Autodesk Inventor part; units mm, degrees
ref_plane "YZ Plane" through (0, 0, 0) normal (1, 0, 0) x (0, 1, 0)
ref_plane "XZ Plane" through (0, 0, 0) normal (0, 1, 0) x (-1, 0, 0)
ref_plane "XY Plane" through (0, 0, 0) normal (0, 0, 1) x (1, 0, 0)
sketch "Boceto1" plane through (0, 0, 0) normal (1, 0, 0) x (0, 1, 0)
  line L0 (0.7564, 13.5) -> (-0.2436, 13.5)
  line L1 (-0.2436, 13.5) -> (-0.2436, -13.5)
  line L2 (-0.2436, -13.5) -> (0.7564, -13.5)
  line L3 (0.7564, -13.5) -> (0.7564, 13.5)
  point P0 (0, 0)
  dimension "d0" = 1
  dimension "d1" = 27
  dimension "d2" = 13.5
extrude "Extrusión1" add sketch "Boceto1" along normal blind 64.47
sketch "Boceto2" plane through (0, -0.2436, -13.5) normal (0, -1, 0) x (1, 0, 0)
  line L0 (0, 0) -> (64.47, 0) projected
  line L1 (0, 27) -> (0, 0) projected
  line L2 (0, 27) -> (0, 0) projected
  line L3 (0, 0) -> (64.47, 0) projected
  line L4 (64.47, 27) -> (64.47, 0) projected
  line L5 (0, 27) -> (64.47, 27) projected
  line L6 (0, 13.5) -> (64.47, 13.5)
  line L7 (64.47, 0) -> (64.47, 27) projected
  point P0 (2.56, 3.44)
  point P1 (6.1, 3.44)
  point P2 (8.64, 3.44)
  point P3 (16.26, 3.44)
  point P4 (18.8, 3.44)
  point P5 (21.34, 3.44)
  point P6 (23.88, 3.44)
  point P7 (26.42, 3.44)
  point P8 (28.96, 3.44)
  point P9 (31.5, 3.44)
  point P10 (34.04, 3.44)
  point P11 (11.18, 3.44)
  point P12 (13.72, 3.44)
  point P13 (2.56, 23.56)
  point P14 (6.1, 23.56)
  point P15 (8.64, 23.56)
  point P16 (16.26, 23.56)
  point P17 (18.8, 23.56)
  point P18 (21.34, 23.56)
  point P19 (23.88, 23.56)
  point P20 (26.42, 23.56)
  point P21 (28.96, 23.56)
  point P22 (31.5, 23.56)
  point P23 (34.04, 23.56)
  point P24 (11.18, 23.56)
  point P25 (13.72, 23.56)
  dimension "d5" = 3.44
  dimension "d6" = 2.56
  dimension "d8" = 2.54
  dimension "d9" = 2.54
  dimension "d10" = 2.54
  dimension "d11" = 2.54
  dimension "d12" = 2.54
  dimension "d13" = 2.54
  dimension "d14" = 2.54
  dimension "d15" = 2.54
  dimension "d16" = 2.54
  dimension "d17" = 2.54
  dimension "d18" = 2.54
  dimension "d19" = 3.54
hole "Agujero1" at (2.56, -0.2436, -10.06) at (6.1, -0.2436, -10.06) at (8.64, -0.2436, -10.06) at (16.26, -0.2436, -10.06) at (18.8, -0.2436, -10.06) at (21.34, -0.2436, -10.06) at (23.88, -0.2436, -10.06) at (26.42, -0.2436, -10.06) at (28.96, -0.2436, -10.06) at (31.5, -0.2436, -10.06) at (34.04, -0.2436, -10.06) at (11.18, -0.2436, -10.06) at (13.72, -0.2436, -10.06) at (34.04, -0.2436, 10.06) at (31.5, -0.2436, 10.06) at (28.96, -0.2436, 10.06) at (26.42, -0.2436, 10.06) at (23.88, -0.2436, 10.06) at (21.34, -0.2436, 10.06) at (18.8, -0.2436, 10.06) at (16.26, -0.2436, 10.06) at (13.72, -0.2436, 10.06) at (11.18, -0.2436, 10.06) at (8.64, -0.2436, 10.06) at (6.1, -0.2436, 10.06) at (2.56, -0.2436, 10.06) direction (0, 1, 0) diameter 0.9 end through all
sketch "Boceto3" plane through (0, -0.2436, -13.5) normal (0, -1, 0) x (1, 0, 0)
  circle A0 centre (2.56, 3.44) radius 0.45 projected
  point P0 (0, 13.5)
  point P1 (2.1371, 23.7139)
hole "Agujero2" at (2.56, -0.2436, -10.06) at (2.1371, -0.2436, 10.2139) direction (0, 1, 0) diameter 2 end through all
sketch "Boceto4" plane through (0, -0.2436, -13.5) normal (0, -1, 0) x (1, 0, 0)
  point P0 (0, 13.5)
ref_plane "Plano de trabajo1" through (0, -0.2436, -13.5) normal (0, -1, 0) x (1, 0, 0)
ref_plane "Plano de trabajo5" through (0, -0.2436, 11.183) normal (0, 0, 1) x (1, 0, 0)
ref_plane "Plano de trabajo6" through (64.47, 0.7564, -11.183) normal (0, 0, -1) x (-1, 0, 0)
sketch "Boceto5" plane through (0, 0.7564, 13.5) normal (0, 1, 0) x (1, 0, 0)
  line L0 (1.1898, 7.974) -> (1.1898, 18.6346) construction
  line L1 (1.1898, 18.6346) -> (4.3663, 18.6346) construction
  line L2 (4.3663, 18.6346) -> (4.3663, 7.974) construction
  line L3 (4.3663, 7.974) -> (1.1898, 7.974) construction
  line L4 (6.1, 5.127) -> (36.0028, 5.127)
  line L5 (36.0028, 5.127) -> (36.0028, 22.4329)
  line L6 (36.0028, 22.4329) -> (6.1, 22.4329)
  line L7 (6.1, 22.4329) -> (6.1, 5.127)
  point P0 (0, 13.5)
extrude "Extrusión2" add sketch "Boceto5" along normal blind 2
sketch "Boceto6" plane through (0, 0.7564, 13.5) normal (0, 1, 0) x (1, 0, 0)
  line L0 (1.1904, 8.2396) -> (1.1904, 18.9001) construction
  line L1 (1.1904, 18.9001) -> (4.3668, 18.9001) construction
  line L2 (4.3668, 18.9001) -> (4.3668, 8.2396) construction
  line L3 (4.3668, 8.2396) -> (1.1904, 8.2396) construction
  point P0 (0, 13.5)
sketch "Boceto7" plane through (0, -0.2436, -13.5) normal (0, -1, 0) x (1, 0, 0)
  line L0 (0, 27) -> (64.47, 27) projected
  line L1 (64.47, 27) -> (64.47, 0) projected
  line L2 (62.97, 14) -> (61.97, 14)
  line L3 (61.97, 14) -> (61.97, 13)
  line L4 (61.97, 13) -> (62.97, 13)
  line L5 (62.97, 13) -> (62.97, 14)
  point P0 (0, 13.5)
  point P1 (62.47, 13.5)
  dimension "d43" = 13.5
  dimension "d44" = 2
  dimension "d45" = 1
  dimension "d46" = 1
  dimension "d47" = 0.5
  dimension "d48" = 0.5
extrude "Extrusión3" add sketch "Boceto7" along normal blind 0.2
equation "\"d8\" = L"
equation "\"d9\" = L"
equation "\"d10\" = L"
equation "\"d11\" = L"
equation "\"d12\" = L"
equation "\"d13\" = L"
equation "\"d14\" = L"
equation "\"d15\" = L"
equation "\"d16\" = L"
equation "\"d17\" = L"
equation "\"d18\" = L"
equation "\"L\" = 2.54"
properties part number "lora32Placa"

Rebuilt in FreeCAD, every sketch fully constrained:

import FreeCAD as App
import Part
import Sketcher
Q = App.Units.Quantity


def add_polygon(sketch, points):
    """Adds a closed chain of lines whose ends are joined by coincident constraints."""
    first, n = sketch.GeometryCount, len(points)
    for a, b in zip(points, points[1:] + points[:1]):
        sketch.addGeometry(Part.LineSegment(App.Vector(*a, 0), App.Vector(*b, 0)), False)
    for i in range(n):
        sketch.addConstraint(Sketcher.Constraint("Coincident", first + i, 2, first + (i + 1) % n, 1))

doc = App.newDocument("Part")
body = doc.addObject("PartDesign::Body", "Body")

# Sketch on YZ plane
sketch1 = doc.addObject("Sketcher::SketchObject", "Sketch")
body.addObject(sketch1)
sketch1.AttachmentSupport = (doc.YZ_Plane, [""])
sketch1.MapMode = "FlatFace"
add_polygon(sketch1, [(0.8, -13.5), (0.8, 13.5), (-0.2, 13.5), (-0.2, -13.5)])  # lines 0-3
sketch1.addConstraint(Sketcher.Constraint("Vertical", 0))
sketch1.addConstraint(Sketcher.Constraint("Horizontal", 1))
sketch1.addConstraint(Sketcher.Constraint("Vertical", 2))
sketch1.addConstraint(Sketcher.Constraint("Horizontal", 3))
sketch1.addConstraint(Sketcher.Constraint("DistanceX", 1, 2, 1, 1, Q("1 mm")))
sketch1.addConstraint(Sketcher.Constraint("DistanceY", 0, 1, 0, 2, Q("27 mm")))
sketch1.addConstraint(Sketcher.Constraint("DistanceY", -1, 1, 0, 2, Q("13.5 mm")))
sketch1.addConstraint(Sketcher.Constraint("DistanceX", -1, 1, 0, 2, Q("0.7564 mm")))
pad1 = doc.addObject("PartDesign::Pad", "Pad")
body.addObject(pad1)
pad1.Profile = sketch1
pad1.Length = 64.47

# Sketch on XZ plane
sketch2 = doc.addObject("Sketcher::SketchObject", "Sketch001")
body.addObject(sketch2)
sketch2.AttachmentSupport = (doc.XZ_Plane, [""])
sketch2.MapMode = "FlatFace"
sketch2.AttachmentOffset = App.Placement(App.Vector(0, 0, 0.2436), App.Rotation())
sketch2.addGeometry(Part.Circle(App.Vector(2.56, -10.06, 0), App.Vector(0, 0, 1), 0.45), False)
sketch2.addGeometry(Part.Circle(App.Vector(6.1, -10.06, 0), App.Vector(0, 0, 1), 0.45), False)
sketch2.addGeometry(Part.Circle(App.Vector(8.64, -10.06, 0), App.Vector(0, 0, 1), 0.45), False)
sketch2.addGeometry(Part.Circle(App.Vector(16.26, -10.06, 0), App.Vector(0, 0, 1), 0.45), False)
sketch2.addGeometry(Part.Circle(App.Vector(18.8, -10.06, 0), App.Vector(0, 0, 1), 0.45), False)
sketch2.addGeometry(Part.Circle(App.Vector(21.34, -10.06, 0), App.Vector(0, 0, 1), 0.45), False)
sketch2.addGeometry(Part.Circle(App.Vector(23.88, -10.06, 0), App.Vector(0, 0, 1), 0.45), False)
sketch2.addGeometry(Part.Circle(App.Vector(26.42, -10.06, 0), App.Vector(0, 0, 1), 0.45), False)
sketch2.addGeometry(Part.Circle(App.Vector(28.96, -10.06, 0), App.Vector(0, 0, 1), 0.45), False)
sketch2.addGeometry(Part.Circle(App.Vector(31.5, -10.06, 0), App.Vector(0, 0, 1), 0.45), False)
sketch2.addGeometry(Part.Circle(App.Vector(34.04, -10.06, 0), App.Vector(0, 0, 1), 0.45), False)
sketch2.addGeometry(Part.Circle(App.Vector(11.18, -10.06, 0), App.Vector(0, 0, 1), 0.45), False)
sketch2.addGeometry(Part.Circle(App.Vector(13.72, -10.06, 0), App.Vector(0, 0, 1), 0.45), False)
sketch2.addGeometry(Part.Circle(App.Vector(34.04, 10.06, 0), App.Vector(0, 0, 1), 0.45), False)
sketch2.addGeometry(Part.Circle(App.Vector(31.5, 10.06, 0), App.Vector(0, 0, 1), 0.45), False)
sketch2.addGeometry(Part.Circle(App.Vector(28.96, 10.06, 0), App.Vector(0, 0, 1), 0.45), False)
sketch2.addGeometry(Part.Circle(App.Vector(26.42, 10.06, 0), App.Vector(0, 0, 1), 0.45), False)
sketch2.addGeometry(Part.Circle(App.Vector(23.88, 10.06, 0), App.Vector(0, 0, 1), 0.45), False)
sketch2.addGeometry(Part.Circle(App.Vector(21.34, 10.06, 0), App.Vector(0, 0, 1), 0.45), False)
sketch2.addGeometry(Part.Circle(App.Vector(18.8, 10.06, 0), App.Vector(0, 0, 1), 0.45), False)
sketch2.addGeometry(Part.Circle(App.Vector(16.26, 10.06, 0), App.Vector(0, 0, 1), 0.45), False)
sketch2.addGeometry(Part.Circle(App.Vector(13.72, 10.06, 0), App.Vector(0, 0, 1), 0.45), False)
sketch2.addGeometry(Part.Circle(App.Vector(11.18, 10.06, 0), App.Vector(0, 0, 1), 0.45), False)
sketch2.addGeometry(Part.Circle(App.Vector(8.64, 10.06, 0), App.Vector(0, 0, 1), 0.45), False)
sketch2.addGeometry(Part.Circle(App.Vector(6.1, 10.06, 0), App.Vector(0, 0, 1), 0.45), False)
sketch2.addGeometry(Part.Circle(App.Vector(2.56, 10.06, 0), App.Vector(0, 0, 1), 0.45), False)
sketch2.addConstraint(Sketcher.Constraint("Equal", 0, 1))
sketch2.addConstraint(Sketcher.Constraint("Equal", 1, 2))
sketch2.addConstraint(Sketcher.Constraint("Equal", 2, 3))
sketch2.addConstraint(Sketcher.Constraint("Equal", 3, 4))
sketch2.addConstraint(Sketcher.Constraint("Equal", 4, 5))
sketch2.addConstraint(Sketcher.Constraint("Equal", 5, 6))
sketch2.addConstraint(Sketcher.Constraint("Equal", 6, 7))
sketch2.addConstraint(Sketcher.Constraint("Equal", 7, 8))
sketch2.addConstraint(Sketcher.Constraint("Equal", 8, 9))
sketch2.addConstraint(Sketcher.Constraint("Equal", 9, 10))
sketch2.addConstraint(Sketcher.Constraint("Equal", 10, 11))
sketch2.addConstraint(Sketcher.Constraint("Equal", 11, 12))
sketch2.addConstraint(Sketcher.Constraint("Equal", 12, 13))
sketch2.addConstraint(Sketcher.Constraint("Equal", 13, 14))
sketch2.addConstraint(Sketcher.Constraint("Equal", 14, 15))
sketch2.addConstraint(Sketcher.Constraint("Equal", 15, 16))
sketch2.addConstraint(Sketcher.Constraint("Equal", 16, 17))
sketch2.addConstraint(Sketcher.Constraint("Equal", 17, 18))
sketch2.addConstraint(Sketcher.Constraint("Equal", 18, 19))
sketch2.addConstraint(Sketcher.Constraint("Equal", 19, 20))
sketch2.addConstraint(Sketcher.Constraint("Equal", 20, 21))
sketch2.addConstraint(Sketcher.Constraint("Equal", 21, 22))
sketch2.addConstraint(Sketcher.Constraint("Equal", 22, 23))
sketch2.addConstraint(Sketcher.Constraint("Equal", 23, 24))
sketch2.addConstraint(Sketcher.Constraint("Equal", 24, 25))
sketch2.addConstraint(Sketcher.Constraint("Symmetric", 10, 3, 13, 3, -1))
sketch2.addConstraint(Sketcher.Constraint("Symmetric", 9, 3, 14, 3, -1))
sketch2.addConstraint(Sketcher.Constraint("Symmetric", 8, 3, 15, 3, -1))
sketch2.addConstraint(Sketcher.Constraint("Symmetric", 7, 3, 16, 3, -1))
sketch2.addConstraint(Sketcher.Constraint("Symmetric", 6, 3, 17, 3, -1))
sketch2.addConstraint(Sketcher.Constraint("Symmetric", 5, 3, 18, 3, -1))
sketch2.addConstraint(Sketcher.Constraint("Symmetric", 4, 3, 19, 3, -1))
sketch2.addConstraint(Sketcher.Constraint("Symmetric", 3, 3, 20, 3, -1))
sketch2.addConstraint(Sketcher.Constraint("Symmetric", 12, 3, 21, 3, -1))
sketch2.addConstraint(Sketcher.Constraint("Symmetric", 11, 3, 22, 3, -1))
sketch2.addConstraint(Sketcher.Constraint("Symmetric", 2, 3, 23, 3, -1))
sketch2.addConstraint(Sketcher.Constraint("Symmetric", 1, 3, 24, 3, -1))
sketch2.addConstraint(Sketcher.Constraint("Symmetric", 0, 3, 25, 3, -1))
sketch2.addConstraint(Sketcher.Constraint("Horizontal", 0, 3, 1, 3))
sketch2.addConstraint(Sketcher.Constraint("Horizontal", 1, 3, 2, 3))
sketch2.addConstraint(Sketcher.Constraint("Horizontal", 2, 3, 3, 3))
sketch2.addConstraint(Sketcher.Constraint("Horizontal", 3, 3, 4, 3))
sketch2.addConstraint(Sketcher.Constraint("Horizontal", 4, 3, 5, 3))
sketch2.addConstraint(Sketcher.Constraint("Horizontal", 5, 3, 6, 3))
sketch2.addConstraint(Sketcher.Constraint("Horizontal", 6, 3, 7, 3))
sketch2.addConstraint(Sketcher.Constraint("Horizontal", 7, 3, 8, 3))
sketch2.addConstraint(Sketcher.Constraint("Horizontal", 8, 3, 9, 3))
sketch2.addConstraint(Sketcher.Constraint("Horizontal", 9, 3, 10, 3))
sketch2.addConstraint(Sketcher.Constraint("Horizontal", 10, 3, 11, 3))
sketch2.addConstraint(Sketcher.Constraint("Horizontal", 11, 3, 12, 3))
sketch2.addConstraint(Sketcher.Constraint("Diameter", 0, Q("0.9 mm")))
sketch2.addConstraint(Sketcher.Constraint("DistanceX", -1, 1, 1, 3, Q("6.1 mm")))
sketch2.addConstraint(Sketcher.Constraint("DistanceX", -1, 1, 4, 3, Q("18.8 mm")))
sketch2.addConstraint(Sketcher.Constraint("DistanceX", -1, 1, 9, 3, Q("31.5 mm")))
sketch2.addConstraint(Sketcher.Constraint("DistanceX", 0, 3, 3, 3, Q("13.7 mm")))
sketch2.addConstraint(Sketcher.Constraint("DistanceX", 2, 3, 5, 3, Q("12.7 mm")))
sketch2.addConstraint(Sketcher.Constraint("DistanceX", 3, 3, 8, 3, Q("12.7 mm")))
sketch2.addConstraint(Sketcher.Constraint("DistanceX", 5, 3, 10, 3, Q("12.7 mm")))
sketch2.addConstraint(Sketcher.Constraint("DistanceX", 21, 3, 16, 3, Q("12.7 mm")))
sketch2.addConstraint(Sketcher.Constraint("DistanceX", 22, 3, 17, 3, Q("12.7 mm")))
sketch2.addConstraint(Sketcher.Constraint("DistanceX", -1, 1, 0, 3, Q("2.56 mm")))
sketch2.addConstraint(Sketcher.Constraint("DistanceY", 0, 3, -1, 1, Q("10.06 mm")))
sketch2.addConstraint(Sketcher.Constraint("DistanceX", -1, 1, 2, 3, Q("8.64 mm")))
sketch2.addConstraint(Sketcher.Constraint("DistanceX", -1, 1, 6, 3, Q("23.88 mm")))
sketch2.addConstraint(Sketcher.Constraint("DistanceX", -1, 1, 7, 3, Q("26.42 mm")))
doc.recompute()
hole = doc.addObject("PartDesign::Hole", "Hole")
body.addObject(hole)
hole.Profile = sketch2
hole.ThreadType = "None"
hole.Diameter = 0.9
hole.DepthType = "ThroughAll"

# Sketch on XZ plane
sketch3 = doc.addObject("Sketcher::SketchObject", "Sketch002")
body.addObject(sketch3)
sketch3.AttachmentSupport = (doc.XZ_Plane, [""])
sketch3.MapMode = "FlatFace"
sketch3.AttachmentOffset = App.Placement(App.Vector(0, 0, 0.2436), App.Rotation())
sketch3.addGeometry(Part.Circle(App.Vector(2.6, -10.1, 0), App.Vector(0, 0, 1), 1), False)
sketch3.addGeometry(Part.Circle(App.Vector(2.1, 10.2, 0), App.Vector(0, 0, 1), 1), False)
sketch3.addConstraint(Sketcher.Constraint("Equal", 0, 1))
sketch3.addConstraint(Sketcher.Constraint("Diameter", 0, Q("2 mm")))
sketch3.addConstraint(Sketcher.Constraint("DistanceX", -1, 1, 0, 3, Q("2.56 mm")))
sketch3.addConstraint(Sketcher.Constraint("DistanceY", 0, 3, -1, 1, Q("10.06 mm")))
sketch3.addConstraint(Sketcher.Constraint("DistanceX", -1, 1, 1, 3, Q("2.137 mm")))
sketch3.addConstraint(Sketcher.Constraint("DistanceY", -1, 1, 1, 3, Q("10.214 mm")))
doc.recompute()
hole2 = doc.addObject("PartDesign::Hole", "Hole001")
body.addObject(hole2)
hole2.Profile = sketch3
hole2.ThreadType = "None"
hole2.Diameter = 2
hole2.DepthType = "ThroughAll"

# Sketch on XZ plane
sketch4 = doc.addObject("Sketcher::SketchObject", "Sketch003")
body.addObject(sketch4)
sketch4.AttachmentSupport = (doc.XZ_Plane, [""])
sketch4.MapMode = "FlatFace"
sketch4.AttachmentOffset = App.Placement(App.Vector(0, 0, -0.7564), App.Rotation())
add_polygon(sketch4, [(6, -9), (6, 8), (36, 8), (36, -9)])  # lines 0-3
sketch4.addConstraint(Sketcher.Constraint("Vertical", 0))
sketch4.addConstraint(Sketcher.Constraint("Horizontal", 1))
sketch4.addConstraint(Sketcher.Constraint("Vertical", 2))
sketch4.addConstraint(Sketcher.Constraint("Horizontal", 3))
sketch4.addConstraint(Sketcher.Constraint("DistanceX", -1, 1, 0, 2, Q("6.1 mm")))
sketch4.addConstraint(Sketcher.Constraint("DistanceY", 0, 1, 0, 2, Q("17.306 mm")))
sketch4.addConstraint(Sketcher.Constraint("DistanceX", 1, 1, 1, 2, Q("29.9028 mm")))
sketch4.addConstraint(Sketcher.Constraint("DistanceY", -1, 1, 0, 2, Q("8.373 mm")))
pad2 = doc.addObject("PartDesign::Pad", "Pad001")
body.addObject(pad2)
pad2.Profile = sketch4
pad2.Length = 2
pad2.Reversed = True

# Sketch on XZ plane
sketch5 = doc.addObject("Sketcher::SketchObject", "Sketch004")
body.addObject(sketch5)
sketch5.AttachmentSupport = (doc.XZ_Plane, [""])
sketch5.MapMode = "FlatFace"
sketch5.AttachmentOffset = App.Placement(App.Vector(0, 0, 0.2436), App.Rotation())
add_polygon(sketch5, [(63, -0.5), (63, 0.5), (62, 0.5), (62, -0.5)])  # lines 0-3
sketch5.addConstraint(Sketcher.Constraint("Vertical", 0))
sketch5.addConstraint(Sketcher.Constraint("Horizontal", 1))
sketch5.addConstraint(Sketcher.Constraint("Vertical", 2))
sketch5.addConstraint(Sketcher.Constraint("Horizontal", 3))
sketch5.addConstraint(Sketcher.Constraint("Equal", 3, 0))
sketch5.addConstraint(Sketcher.Constraint("DistanceX", 1, 2, 1, 1, Q("1 mm")))
sketch5.addConstraint(Sketcher.Constraint("DistanceY", -1, 1, 0, 2, Q("0.5 mm")))
sketch5.addConstraint(Sketcher.Constraint("DistanceX", -1, 1, 0, 2, Q("62.97 mm")))
pad3 = doc.addObject("PartDesign::Pad", "Pad002")
body.addObject(pad3)
pad3.Profile = sketch5
pad3.Length = 0.2

doc.recompute()
